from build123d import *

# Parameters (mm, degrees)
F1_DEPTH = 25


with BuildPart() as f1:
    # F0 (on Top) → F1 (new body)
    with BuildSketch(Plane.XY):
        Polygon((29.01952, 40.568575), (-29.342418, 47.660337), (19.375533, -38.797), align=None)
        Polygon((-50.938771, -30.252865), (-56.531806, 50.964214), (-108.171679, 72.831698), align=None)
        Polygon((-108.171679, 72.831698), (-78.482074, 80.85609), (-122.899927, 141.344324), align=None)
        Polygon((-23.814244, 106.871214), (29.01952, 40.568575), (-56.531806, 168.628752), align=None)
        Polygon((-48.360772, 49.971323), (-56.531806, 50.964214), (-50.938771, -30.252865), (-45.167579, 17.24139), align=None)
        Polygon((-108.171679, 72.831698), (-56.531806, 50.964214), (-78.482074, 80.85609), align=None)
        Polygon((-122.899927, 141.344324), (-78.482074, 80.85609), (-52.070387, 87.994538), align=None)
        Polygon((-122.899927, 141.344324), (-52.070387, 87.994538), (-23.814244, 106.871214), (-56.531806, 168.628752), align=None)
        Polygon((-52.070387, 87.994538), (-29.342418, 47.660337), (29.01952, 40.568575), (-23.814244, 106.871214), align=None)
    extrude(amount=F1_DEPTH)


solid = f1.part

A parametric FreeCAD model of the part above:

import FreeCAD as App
import Part
import Sketcher
Q = App.Units.Quantity

doc = App.newDocument("Part")
body = doc.addObject("PartDesign::Body", "Body")

sketch1 = body.newObject("Sketcher::SketchObject", "Sketch")
sketch1.AttachmentSupport = (doc.getObject("XY_Plane"), [""])
sketch1.MapMode = "FlatFace"
sketch1.addGeometry(Part.LineSegment(App.Vector(-29, 48, 0), App.Vector(19, -39, 0)), False)
sketch1.addGeometry(Part.LineSegment(App.Vector(19, -39, 0), App.Vector(29, 41, 0)), False)
sketch1.addGeometry(Part.LineSegment(App.Vector(29, 41, 0), App.Vector(-57, 169, 0)), False)
sketch1.addGeometry(Part.LineSegment(App.Vector(-57, 169, 0), App.Vector(-123, 141, 0)), False)
sketch1.addGeometry(Part.LineSegment(App.Vector(-123, 141, 0), App.Vector(-108, 73, 0)), False)
sketch1.addGeometry(Part.LineSegment(App.Vector(-108, 73, 0), App.Vector(-51, -30, 0)), False)
sketch1.addGeometry(Part.LineSegment(App.Vector(-51, -30, 0), App.Vector(-45, 17, 0)), False)
sketch1.addGeometry(Part.LineSegment(App.Vector(-45, 17, 0), App.Vector(-48, 50, 0)), False)
sketch1.addGeometry(Part.LineSegment(App.Vector(-48, 50, 0), App.Vector(-57, 51, 0)), False)
sketch1.addGeometry(Part.LineSegment(App.Vector(-57, 51, 0), App.Vector(-78, 81, 0)), False)
sketch1.addGeometry(Part.LineSegment(App.Vector(-78, 81, 0), App.Vector(-52, 88, 0)), False)
sketch1.addGeometry(Part.LineSegment(App.Vector(-52, 88, 0), App.Vector(-29, 48, 0)), False)
sketch1.addConstraint(Sketcher.Constraint("Coincident", 0, 2, 1, 1))
sketch1.addConstraint(Sketcher.Constraint("Coincident", 1, 2, 2, 1))
sketch1.addConstraint(Sketcher.Constraint("Coincident", 2, 2, 3, 1))
sketch1.addConstraint(Sketcher.Constraint("Coincident", 3, 2, 4, 1))
sketch1.addConstraint(Sketcher.Constraint("Coincident", 4, 2, 5, 1))
sketch1.addConstraint(Sketcher.Constraint("Coincident", 5, 2, 6, 1))
sketch1.addConstraint(Sketcher.Constraint("Coincident", 6, 2, 7, 1))
sketch1.addConstraint(Sketcher.Constraint("Coincident", 7, 2, 8, 1))
sketch1.addConstraint(Sketcher.Constraint("Coincident", 8, 2, 9, 1))
sketch1.addConstraint(Sketcher.Constraint("Coincident", 9, 2, 10, 1))
sketch1.addConstraint(Sketcher.Constraint("Coincident", 10, 2, 11, 1))
sketch1.addConstraint(Sketcher.Constraint("Coincident", 11, 2, 0, 1))
sketch1.addConstraint(Sketcher.Constraint("Parallel", 1, 6))
sketch1.addConstraint(Sketcher.Constraint("Perpendicular", 6, 8))
sketch1.addConstraint(Sketcher.Constraint("Parallel", 0, 11))
sketch1.addConstraint(Sketcher.Constraint("Vertical", 2, 2, 8, 2))
sketch1.addConstraint(Sketcher.Constraint("DistanceY", 0, 2, -1, 1, Q("38.797 mm")))
sketch1.addConstraint(Sketcher.Constraint("DistanceX", 5, 2, 7, 2, Q("2.577999 mm")))
sketch1.addConstraint(Sketcher.Constraint("Distance", 3, Q("71.7577 mm")))
sketch1.addConstraint(Sketcher.Constraint("DistanceY", -1, 1, 4, 2, Q("72.831698 mm")))
sketch1.addConstraint(Sketcher.Constraint("DistanceX", 4, 2, 1, 2, Q("137.191199 mm")))
sketch1.addConstraint(Sketcher.Constraint("DistanceX", 6, 2, 1, 2, Q("74.187099 mm")))
sketch1.addConstraint(Sketcher.Constraint("DistanceX", 9, 2, 7, 2, Q("30.121302 mm")))
sketch1.addConstraint(Sketcher.Constraint("DistanceY", 6, 2, 9, 2, Q("63.6147 mm")))
sketch1.addConstraint(Sketcher.Constraint("DistanceY", 11, 2, 10, 2, Q("40.334201 mm")))
sketch1.addConstraint(Sketcher.Constraint("Distance", 0, Q("99.238651 mm")))
sketch1.addConstraint(Sketcher.Constraint("Distance", 6, Q("47.843609 mm")))
sketch1.addConstraint(Sketcher.Constraint("Distance", 7, Q("32.885331 mm")))
sketch1.addConstraint(Sketcher.Constraint("Distance", 10, Q("27.359361 mm")))
sketch1.addConstraint(Sketcher.Constraint("Distance", 11, Q("46.296958 mm")))
sketch1.addConstraint(Sketcher.Constraint("DistanceX", -1, 1, 1, 2, Q("29.01952 mm")))
sketch1.addConstraint(Sketcher.Constraint("DistanceY", -1, 1, 2, 2, Q("168.628752 mm")))
sketch1.addConstraint(Sketcher.Constraint("DistanceX", 5, 2, -1, 1, Q("50.938771 mm")))
sketch1.addConstraint(Sketcher.Constraint("DistanceY", -1, 1, 6, 2, Q("17.24139 mm")))
sketch1.addConstraint(Sketcher.Constraint("DistanceX", 2, 2, 0, 2, Q("75.907339 mm")))
sketch1.addConstraint(Sketcher.Constraint("DistanceX", 3, 2, 2, 2, Q("66.368121 mm")))
pad1 = body.newObject("PartDesign::Pad", "Pad")
pad1.Profile = sketch1
pad1.Length = 25

doc.recompute()
